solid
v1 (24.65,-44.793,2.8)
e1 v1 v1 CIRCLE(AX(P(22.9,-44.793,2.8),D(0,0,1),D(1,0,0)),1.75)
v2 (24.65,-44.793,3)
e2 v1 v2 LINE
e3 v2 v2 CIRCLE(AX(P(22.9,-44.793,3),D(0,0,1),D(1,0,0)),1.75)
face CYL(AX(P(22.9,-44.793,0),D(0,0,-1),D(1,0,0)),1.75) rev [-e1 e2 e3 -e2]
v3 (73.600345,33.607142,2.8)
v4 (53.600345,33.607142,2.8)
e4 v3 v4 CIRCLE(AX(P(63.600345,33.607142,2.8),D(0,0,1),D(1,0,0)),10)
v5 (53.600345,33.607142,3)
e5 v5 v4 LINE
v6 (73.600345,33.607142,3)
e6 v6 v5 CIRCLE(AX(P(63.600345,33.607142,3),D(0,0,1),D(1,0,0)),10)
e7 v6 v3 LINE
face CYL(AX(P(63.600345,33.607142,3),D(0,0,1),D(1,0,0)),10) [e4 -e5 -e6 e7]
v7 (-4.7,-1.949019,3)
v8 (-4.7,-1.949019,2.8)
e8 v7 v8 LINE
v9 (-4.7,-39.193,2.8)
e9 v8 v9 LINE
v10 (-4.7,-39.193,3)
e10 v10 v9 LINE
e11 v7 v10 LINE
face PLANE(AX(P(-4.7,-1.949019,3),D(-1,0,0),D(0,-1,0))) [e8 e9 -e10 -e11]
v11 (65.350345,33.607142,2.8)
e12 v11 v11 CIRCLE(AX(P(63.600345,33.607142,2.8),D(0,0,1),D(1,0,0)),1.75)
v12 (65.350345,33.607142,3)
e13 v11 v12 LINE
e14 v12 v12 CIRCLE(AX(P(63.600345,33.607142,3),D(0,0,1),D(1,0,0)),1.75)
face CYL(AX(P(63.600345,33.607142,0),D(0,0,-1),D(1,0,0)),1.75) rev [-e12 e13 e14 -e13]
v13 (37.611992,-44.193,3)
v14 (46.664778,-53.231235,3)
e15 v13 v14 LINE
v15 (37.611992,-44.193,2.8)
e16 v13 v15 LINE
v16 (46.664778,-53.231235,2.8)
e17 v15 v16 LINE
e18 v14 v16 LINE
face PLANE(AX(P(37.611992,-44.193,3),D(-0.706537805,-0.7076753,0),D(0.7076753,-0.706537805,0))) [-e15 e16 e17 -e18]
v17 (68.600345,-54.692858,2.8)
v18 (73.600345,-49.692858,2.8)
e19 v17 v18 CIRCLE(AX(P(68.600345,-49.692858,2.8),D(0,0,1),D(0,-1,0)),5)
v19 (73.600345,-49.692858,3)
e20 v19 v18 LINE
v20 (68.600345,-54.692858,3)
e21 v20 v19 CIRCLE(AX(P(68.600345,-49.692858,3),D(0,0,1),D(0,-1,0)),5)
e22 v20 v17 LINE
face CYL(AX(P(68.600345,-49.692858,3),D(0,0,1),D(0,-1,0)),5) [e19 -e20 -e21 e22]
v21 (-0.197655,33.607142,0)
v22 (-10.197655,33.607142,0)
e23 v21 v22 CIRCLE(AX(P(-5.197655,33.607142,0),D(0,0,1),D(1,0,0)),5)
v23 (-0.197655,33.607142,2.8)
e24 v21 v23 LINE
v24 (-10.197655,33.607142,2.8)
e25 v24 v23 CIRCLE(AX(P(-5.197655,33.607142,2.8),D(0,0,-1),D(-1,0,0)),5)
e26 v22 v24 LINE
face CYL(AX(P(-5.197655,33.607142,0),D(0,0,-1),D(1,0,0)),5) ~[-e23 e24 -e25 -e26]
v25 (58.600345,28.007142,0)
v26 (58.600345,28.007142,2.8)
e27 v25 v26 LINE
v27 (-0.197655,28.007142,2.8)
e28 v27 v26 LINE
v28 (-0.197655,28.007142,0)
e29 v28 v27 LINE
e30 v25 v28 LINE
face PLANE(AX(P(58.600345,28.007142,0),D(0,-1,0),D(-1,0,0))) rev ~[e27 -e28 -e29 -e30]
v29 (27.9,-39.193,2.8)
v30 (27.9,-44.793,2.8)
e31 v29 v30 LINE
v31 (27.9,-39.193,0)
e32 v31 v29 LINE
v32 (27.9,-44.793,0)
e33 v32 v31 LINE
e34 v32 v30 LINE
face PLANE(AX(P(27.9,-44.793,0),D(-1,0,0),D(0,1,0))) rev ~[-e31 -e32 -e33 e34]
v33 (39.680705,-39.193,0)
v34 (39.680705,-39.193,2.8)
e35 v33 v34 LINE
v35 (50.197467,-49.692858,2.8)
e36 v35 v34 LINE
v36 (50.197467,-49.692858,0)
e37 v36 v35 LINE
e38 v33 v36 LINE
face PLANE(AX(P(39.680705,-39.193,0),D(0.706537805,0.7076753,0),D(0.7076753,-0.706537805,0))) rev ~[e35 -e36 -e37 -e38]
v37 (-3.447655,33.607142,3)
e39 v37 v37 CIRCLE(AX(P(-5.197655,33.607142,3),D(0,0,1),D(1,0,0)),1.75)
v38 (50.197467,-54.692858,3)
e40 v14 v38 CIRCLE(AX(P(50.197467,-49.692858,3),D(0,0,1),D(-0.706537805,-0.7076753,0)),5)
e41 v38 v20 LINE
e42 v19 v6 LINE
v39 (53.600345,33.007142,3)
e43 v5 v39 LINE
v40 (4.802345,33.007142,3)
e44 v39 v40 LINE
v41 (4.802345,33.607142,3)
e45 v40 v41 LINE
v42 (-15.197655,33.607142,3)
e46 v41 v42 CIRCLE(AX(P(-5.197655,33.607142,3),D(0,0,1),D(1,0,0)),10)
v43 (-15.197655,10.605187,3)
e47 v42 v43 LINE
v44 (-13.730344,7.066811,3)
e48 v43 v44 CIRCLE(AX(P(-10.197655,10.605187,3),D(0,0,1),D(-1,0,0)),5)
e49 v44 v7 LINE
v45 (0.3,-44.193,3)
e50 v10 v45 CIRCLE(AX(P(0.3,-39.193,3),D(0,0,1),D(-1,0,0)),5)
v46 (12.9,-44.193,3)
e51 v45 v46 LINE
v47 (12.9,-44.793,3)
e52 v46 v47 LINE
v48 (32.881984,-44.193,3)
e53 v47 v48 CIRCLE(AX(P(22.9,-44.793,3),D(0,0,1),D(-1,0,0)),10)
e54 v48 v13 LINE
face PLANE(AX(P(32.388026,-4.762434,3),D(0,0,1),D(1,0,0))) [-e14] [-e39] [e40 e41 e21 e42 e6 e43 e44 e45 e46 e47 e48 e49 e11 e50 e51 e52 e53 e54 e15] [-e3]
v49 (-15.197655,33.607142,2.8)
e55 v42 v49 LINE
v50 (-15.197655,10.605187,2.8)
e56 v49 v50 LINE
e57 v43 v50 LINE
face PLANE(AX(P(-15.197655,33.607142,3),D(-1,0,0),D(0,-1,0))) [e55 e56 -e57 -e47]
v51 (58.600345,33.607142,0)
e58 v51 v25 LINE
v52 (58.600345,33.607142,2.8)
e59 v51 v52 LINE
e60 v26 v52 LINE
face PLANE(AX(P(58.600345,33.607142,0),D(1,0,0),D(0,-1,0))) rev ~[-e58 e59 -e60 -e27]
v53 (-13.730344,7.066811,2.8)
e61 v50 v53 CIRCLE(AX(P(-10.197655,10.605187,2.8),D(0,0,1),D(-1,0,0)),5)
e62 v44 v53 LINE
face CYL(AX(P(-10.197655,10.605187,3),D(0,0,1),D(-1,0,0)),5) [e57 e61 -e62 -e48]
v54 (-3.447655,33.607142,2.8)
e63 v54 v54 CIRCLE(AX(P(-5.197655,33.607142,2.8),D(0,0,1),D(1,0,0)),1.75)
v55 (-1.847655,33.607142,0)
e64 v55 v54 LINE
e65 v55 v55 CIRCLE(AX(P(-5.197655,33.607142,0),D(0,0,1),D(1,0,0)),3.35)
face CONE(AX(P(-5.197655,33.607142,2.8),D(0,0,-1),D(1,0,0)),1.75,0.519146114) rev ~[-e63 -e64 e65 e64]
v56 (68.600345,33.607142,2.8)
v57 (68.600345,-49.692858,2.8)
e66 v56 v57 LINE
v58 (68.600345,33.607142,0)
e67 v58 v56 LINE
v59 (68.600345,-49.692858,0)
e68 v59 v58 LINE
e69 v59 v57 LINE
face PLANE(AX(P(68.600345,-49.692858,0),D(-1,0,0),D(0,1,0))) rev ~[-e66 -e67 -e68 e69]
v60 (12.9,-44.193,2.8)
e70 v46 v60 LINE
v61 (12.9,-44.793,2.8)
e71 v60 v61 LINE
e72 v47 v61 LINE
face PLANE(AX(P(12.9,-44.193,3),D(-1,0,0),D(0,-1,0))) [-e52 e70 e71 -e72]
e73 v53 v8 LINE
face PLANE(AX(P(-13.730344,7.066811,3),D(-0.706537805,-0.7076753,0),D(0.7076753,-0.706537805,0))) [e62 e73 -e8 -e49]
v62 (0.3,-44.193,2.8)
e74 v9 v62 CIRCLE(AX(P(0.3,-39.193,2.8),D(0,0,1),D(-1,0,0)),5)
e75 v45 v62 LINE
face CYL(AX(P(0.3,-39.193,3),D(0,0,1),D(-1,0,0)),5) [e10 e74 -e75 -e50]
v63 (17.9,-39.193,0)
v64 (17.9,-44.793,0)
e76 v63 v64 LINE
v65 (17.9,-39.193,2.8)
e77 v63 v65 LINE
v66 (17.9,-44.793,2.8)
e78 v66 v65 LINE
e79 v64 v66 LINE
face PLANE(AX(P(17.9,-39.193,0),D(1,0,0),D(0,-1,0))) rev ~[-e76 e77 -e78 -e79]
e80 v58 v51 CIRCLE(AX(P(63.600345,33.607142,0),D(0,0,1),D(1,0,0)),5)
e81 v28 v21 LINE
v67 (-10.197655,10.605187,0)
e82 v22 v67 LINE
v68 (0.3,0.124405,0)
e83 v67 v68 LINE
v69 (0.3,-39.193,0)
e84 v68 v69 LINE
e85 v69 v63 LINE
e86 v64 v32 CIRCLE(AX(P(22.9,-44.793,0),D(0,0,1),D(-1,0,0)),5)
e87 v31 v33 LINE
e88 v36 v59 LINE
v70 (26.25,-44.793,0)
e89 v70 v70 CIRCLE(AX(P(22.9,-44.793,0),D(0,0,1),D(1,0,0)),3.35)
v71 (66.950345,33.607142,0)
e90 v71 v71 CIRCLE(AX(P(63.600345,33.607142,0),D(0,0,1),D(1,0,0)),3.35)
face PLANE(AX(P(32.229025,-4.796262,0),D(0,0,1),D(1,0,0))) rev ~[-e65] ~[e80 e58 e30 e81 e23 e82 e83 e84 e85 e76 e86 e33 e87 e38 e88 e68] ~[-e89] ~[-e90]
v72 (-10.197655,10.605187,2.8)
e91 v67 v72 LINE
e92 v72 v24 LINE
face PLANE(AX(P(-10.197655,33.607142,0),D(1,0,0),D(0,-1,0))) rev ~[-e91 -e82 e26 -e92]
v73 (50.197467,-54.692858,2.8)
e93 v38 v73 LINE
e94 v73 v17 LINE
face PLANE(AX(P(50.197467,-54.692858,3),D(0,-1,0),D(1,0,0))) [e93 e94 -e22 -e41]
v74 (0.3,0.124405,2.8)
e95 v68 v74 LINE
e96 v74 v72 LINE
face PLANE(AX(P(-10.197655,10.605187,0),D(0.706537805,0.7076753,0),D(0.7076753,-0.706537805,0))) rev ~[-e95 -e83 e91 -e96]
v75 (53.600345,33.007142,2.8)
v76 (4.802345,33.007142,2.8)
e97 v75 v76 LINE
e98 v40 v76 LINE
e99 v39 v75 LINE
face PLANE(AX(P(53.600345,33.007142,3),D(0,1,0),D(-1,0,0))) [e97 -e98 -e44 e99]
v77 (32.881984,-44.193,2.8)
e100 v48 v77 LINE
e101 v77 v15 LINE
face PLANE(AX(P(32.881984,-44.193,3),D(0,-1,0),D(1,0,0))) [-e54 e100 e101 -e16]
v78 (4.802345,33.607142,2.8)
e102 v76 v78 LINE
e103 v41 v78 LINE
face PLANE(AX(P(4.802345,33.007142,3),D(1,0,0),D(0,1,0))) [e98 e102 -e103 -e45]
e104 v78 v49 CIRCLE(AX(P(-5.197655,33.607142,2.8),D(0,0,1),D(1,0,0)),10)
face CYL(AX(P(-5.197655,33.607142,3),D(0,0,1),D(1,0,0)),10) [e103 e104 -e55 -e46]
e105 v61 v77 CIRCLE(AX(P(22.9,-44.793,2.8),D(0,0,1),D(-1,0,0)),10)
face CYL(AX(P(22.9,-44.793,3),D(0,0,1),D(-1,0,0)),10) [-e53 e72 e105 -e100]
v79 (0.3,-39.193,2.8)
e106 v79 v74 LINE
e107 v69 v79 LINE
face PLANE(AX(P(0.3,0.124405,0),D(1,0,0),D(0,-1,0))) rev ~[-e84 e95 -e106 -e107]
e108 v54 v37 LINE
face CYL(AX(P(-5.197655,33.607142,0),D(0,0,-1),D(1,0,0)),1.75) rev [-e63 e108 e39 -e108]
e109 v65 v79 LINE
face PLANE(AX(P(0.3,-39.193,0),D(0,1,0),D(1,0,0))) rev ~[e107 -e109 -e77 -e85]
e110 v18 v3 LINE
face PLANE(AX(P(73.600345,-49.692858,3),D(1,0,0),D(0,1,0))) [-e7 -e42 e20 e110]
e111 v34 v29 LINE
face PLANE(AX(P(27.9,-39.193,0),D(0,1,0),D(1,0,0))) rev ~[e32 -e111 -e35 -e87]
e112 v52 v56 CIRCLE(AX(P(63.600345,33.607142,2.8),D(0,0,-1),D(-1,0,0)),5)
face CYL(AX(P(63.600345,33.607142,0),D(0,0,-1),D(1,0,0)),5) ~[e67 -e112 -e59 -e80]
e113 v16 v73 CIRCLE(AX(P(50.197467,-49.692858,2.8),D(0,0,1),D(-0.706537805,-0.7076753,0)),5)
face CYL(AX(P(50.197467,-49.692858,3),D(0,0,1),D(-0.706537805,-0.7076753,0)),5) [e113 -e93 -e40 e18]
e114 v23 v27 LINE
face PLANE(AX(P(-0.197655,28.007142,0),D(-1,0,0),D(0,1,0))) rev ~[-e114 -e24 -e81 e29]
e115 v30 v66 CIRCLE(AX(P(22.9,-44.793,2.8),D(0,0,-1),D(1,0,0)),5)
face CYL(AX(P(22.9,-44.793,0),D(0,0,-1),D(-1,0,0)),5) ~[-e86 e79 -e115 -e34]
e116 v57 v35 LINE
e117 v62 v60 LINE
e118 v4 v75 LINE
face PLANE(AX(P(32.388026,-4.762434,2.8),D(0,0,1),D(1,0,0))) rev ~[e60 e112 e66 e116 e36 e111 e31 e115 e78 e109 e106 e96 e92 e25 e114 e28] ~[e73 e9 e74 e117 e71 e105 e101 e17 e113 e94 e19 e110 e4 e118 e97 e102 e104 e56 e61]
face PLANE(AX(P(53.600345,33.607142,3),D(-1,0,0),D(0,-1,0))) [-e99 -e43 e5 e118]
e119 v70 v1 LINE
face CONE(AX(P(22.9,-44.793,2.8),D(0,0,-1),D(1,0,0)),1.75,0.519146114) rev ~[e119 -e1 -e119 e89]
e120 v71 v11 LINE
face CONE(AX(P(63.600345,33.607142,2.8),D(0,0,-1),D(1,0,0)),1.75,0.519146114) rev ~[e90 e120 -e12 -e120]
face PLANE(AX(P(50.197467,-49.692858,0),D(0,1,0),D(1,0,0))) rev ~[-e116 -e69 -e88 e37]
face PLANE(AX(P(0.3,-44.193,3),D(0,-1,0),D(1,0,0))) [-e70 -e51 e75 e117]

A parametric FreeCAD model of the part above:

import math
import FreeCAD as App
import Part
import Sketcher

V = App.Vector
Q = App.Units.Quantity


def edges_at(feature, points):
    """Names of the edges that pass closest to the given points."""
    edges = feature.Shape.Edges
    near = lambda p: min(range(len(edges)), key=lambda i: edges[i].distToShape(Part.Vertex(*p))[0])
    return sorted({f"Edge{near(p) + 1}" for p in points})

doc = App.newDocument("Part")
body = doc.addObject("PartDesign::Body", "Body")

sketch1 = doc.addObject("Sketcher::SketchObject", "Sketch")
body.addObject(sketch1)
sketch1.AttachmentSupport = (doc.XY_Plane, [""])
sketch1.MapMode = "FlatFace"
sketch1.addGeometry([
    Part.LineSegment(V(17.9, -39.2, 0), V(17.9, -44.8, 0)),
    Part.ArcOfCircle(Part.Circle(V(22.9, -44.8, 0), V(0, 0, 1), 5), math.radians(180), math.radians(360)),
    Part.LineSegment(V(27.9, -44.8, 0), V(27.9, -39.2, 0)),
    Part.LineSegment(V(27.9, -39.2, 0), V(39.7, -39.2, 0)),
    Part.LineSegment(V(39.7, -39.2, 0), V(50.2, -49.7, 0)),
    Part.LineSegment(V(50.2, -49.7, 0), V(68.6, -49.7, 0)),
    Part.LineSegment(V(68.6, -49.7, 0), V(68.6, 33.6, 0)),
    Part.ArcOfCircle(Part.Circle(V(63.6, 33.6, 0), V(0, 0, 1), 5), math.radians(0), math.radians(180)),
    Part.LineSegment(V(58.6, 33.6, 0), V(58.6, 28, 0)),
    Part.LineSegment(V(58.6, 28, 0), V(-0.2, 28, 0)),
    Part.LineSegment(V(-0.2, 28, 0), V(-0.2, 33.6, 0)),
    Part.ArcOfCircle(Part.Circle(V(-5.2, 33.6, 0), V(0, 0, 1), 5), math.radians(0), math.radians(180)),
    Part.LineSegment(V(-10.2, 33.6, 0), V(-10.2, 10.6, 0)),
    Part.LineSegment(V(-10.2, 10.6, 0), V(0.3, 0.1, 0)),
    Part.LineSegment(V(0.3, 0.1, 0), V(0.3, -39.2, 0)),
    Part.LineSegment(V(0.3, -39.2, 0), V(17.9, -39.2, 0)),
    Part.Circle(V(22.9, -44.8, 0), V(0, 0, 1), 1.8),
    Part.Circle(V(-5.2, 33.6, 0), V(0, 0, 1), 1.8),
    Part.Circle(V(63.6, 33.6, 0), V(0, 0, 1), 1.8),
], False)
sketch1.addConstraint([
    Sketcher.Constraint("Tangent", 0, 2, 1, 1),
    Sketcher.Constraint("Tangent", 1, 2, 2, 1),
    Sketcher.Constraint("Coincident", 2, 2, 3, 1),
    Sketcher.Constraint("Coincident", 3, 2, 4, 1),
    Sketcher.Constraint("Coincident", 4, 2, 5, 1),
    Sketcher.Constraint("Coincident", 5, 2, 6, 1),
    Sketcher.Constraint("Tangent", 6, 2, 7, 1),
    Sketcher.Constraint("Tangent", 7, 2, 8, 1),
    Sketcher.Constraint("Coincident", 8, 2, 9, 1),
    Sketcher.Constraint("Coincident", 9, 2, 10, 1),
    Sketcher.Constraint("Tangent", 10, 2, 11, 1),
    Sketcher.Constraint("Tangent", 11, 2, 12, 1),
    Sketcher.Constraint("Coincident", 12, 2, 13, 1),
    Sketcher.Constraint("Coincident", 13, 2, 14, 1),
    Sketcher.Constraint("Coincident", 14, 2, 15, 1),
    Sketcher.Constraint("Coincident", 15, 2, 0, 1),
    Sketcher.Constraint("Vertical", 0),
    Sketcher.Constraint("Vertical", 2),
    Sketcher.Constraint("Horizontal", 3),
    Sketcher.Constraint("Horizontal", 5),
    Sketcher.Constraint("Vertical", 6),
    Sketcher.Constraint("Vertical", 8),
    Sketcher.Constraint("Horizontal", 9),
    Sketcher.Constraint("Vertical", 10),
    Sketcher.Constraint("Vertical", 12),
    Sketcher.Constraint("Vertical", 14),
    Sketcher.Constraint("Horizontal", 15),
    Sketcher.Constraint("Coincident", 16, 3, 1, 3),
    Sketcher.Constraint("Coincident", 17, 3, 11, 3),
    Sketcher.Constraint("Coincident", 18, 3, 7, 3),
    Sketcher.Constraint("Equal", 1, 7),
    Sketcher.Constraint("Equal", 7, 11),
    Sketcher.Constraint("Equal", 16, 17),
    Sketcher.Constraint("Equal", 17, 18),
    Sketcher.Constraint("Parallel", 4, 13),
    Sketcher.Constraint("Horizontal", 7, 3, 11, 3),
    Sketcher.Constraint("Horizontal", 3, 2, 14, 2),
    Sketcher.Constraint("Equal", 2, 8),
    Sketcher.Constraint("Radius", 1, Q("5 mm")),
    Sketcher.Constraint("Diameter", 16, Q("3.5 mm")),
    Sketcher.Constraint("DistanceX", 15, 1, 15, 2, Q("17.6 mm")),
    Sketcher.Constraint("DistanceY", 0, 2, 0, 1, Q("5.6 mm")),
    Sketcher.Constraint("DistanceY", 6, 1, 6, 2, Q("83.3 mm")),
    Sketcher.Constraint("DistanceX", -1, 1, 1, 3, Q("22.9 mm")),
    Sketcher.Constraint("DistanceX", 9, 2, 9, 1, Q("58.798 mm")),
    Sketcher.Constraint("Distance", 4, Q("14.861 mm")),
    Sketcher.Constraint("Distance", 13, Q("14.834 mm")),
    Sketcher.Constraint("DistanceY", 1, 3, -1, 1, Q("44.793 mm")),
    Sketcher.Constraint("DistanceX", 3, 1, 3, 2, Q("11.780705 mm")),
    Sketcher.Constraint("DistanceX", 5, 1, 5, 2, Q("18.402877 mm")),
    Sketcher.Constraint("DistanceY", 12, 2, 12, 1, Q("23.001954 mm")),
])
pad1 = doc.addObject("PartDesign::Pad", "Pad")
body.addObject(pad1)
pad1.Profile = sketch1
pad1.Length = 3
doc.recompute()

chamfer = doc.addObject("PartDesign::Chamfer", "Chamfer")
body.addObject(chamfer)
chamfer.Base = (pad1, edges_at(pad1, [(21.15, -44.793, 0), (-6.948, 33.607, 0), (61.85, 33.607, 0)]))
chamfer.ChamferType = "Two distances"
chamfer.Size = 1.6
chamfer.Size2 = 2.8
chamfer.FlipDirection = True

sketch2 = doc.addObject("Sketcher::SketchObject", "Sketch001")
body.addObject(sketch2)
sketch2.AttachmentSupport = (doc.XY_Plane, [""])
sketch2.MapMode = "FlatFace"
sketch2.AttachmentOffset = App.Placement(V(0, 0, 3), App.Rotation())
sketch2.addGeometry([
    Part.ArcOfCircle(Part.Circle(V(-5.2, 33.6, 0), V(0, 0, 1), 10), math.radians(0), math.radians(180)),
    Part.LineSegment(V(-15.2, 33.6, 0), V(-15.2, 10.6, 0)),
    Part.ArcOfCircle(Part.Circle(V(-10.2, 10.6, 0), V(0, 0, 1), 5), math.radians(180), math.radians(225)),
    Part.LineSegment(V(-13.7, 7.1, 0), V(-4.7, -1.9, 0)),
    Part.LineSegment(V(-4.7, -1.9, 0), V(-4.7, -39.2, 0)),
    Part.ArcOfCircle(Part.Circle(V(0.3, -39.2, 0), V(0, 0, 1), 5), math.radians(180), math.radians(270)),
    Part.LineSegment(V(0.3, -44.2, 0), V(12.9, -44.2, 0)),
    Part.LineSegment(V(12.9, -44.2, 0), V(12.9, -44.8, 0)),
    Part.ArcOfCircle(Part.Circle(V(22.9, -44.8, 0), V(0, 0, 1), 10), math.radians(180), math.radians(363)),
    Part.LineSegment(V(32.9, -44.2, 0), V(37.6, -44.2, 0)),
    Part.LineSegment(V(37.6, -44.2, 0), V(46.7, -53.2, 0)),
    Part.ArcOfCircle(Part.Circle(V(50.2, -49.7, 0), V(0, 0, 1), 5), math.radians(-135), math.radians(-90)),
    Part.LineSegment(V(50.2, -54.7, 0), V(68.6, -54.7, 0)),
    Part.ArcOfCircle(Part.Circle(V(68.6, -49.7, 0), V(0, 0, 1), 5), math.radians(-90), math.radians(0)),
    Part.LineSegment(V(73.6, -49.7, 0), V(73.6, 33.6, 0)),
    Part.ArcOfCircle(Part.Circle(V(63.6, 33.6, 0), V(0, 0, 1), 10), math.radians(0), math.radians(180)),
    Part.LineSegment(V(53.6, 33.6, 0), V(53.6, 33, 0)),
    Part.LineSegment(V(53.6, 33, 0), V(4.8, 33, 0)),
    Part.LineSegment(V(4.8, 33, 0), V(4.8, 33.6, 0)),
    Part.LineSegment(V(0.3, -39.2, 0), V(0.3, 0.1, 0)),
    Part.LineSegment(V(0.3, 0.1, 0), V(-10.2, 10.6, 0)),
    Part.LineSegment(V(-10.2, 10.6, 0), V(-10.2, 33.6, 0)),
    Part.ArcOfCircle(Part.Circle(V(-5.2, 33.6, 0), V(0, 0, 1), 5), math.radians(0), math.radians(180)),
    Part.LineSegment(V(-0.2, 33.6, 0), V(-0.2, 28, 0)),
    Part.LineSegment(V(-0.2, 28, 0), V(58.6, 28, 0)),
    Part.LineSegment(V(58.6, 28, 0), V(58.6, 33.6, 0)),
    Part.ArcOfCircle(Part.Circle(V(63.6, 33.6, 0), V(0, 0, 1), 5), math.radians(0), math.radians(180)),
    Part.LineSegment(V(68.6, 33.6, 0), V(68.6, -49.7, 0)),
    Part.LineSegment(V(68.6, -49.7, 0), V(50.2, -49.7, 0)),
    Part.LineSegment(V(50.2, -49.7, 0), V(39.7, -39.2, 0)),
    Part.LineSegment(V(39.7, -39.2, 0), V(27.9, -39.2, 0)),
    Part.LineSegment(V(27.9, -39.2, 0), V(27.9, -44.8, 0)),
    Part.ArcOfCircle(Part.Circle(V(22.9, -44.8, 0), V(0, 0, 1), 5), math.radians(180), math.radians(360)),
    Part.LineSegment(V(17.9, -44.8, 0), V(17.9, -39.2, 0)),
    Part.LineSegment(V(17.9, -39.2, 0), V(0.3, -39.2, 0)),
], False)
sketch2.addConstraint([
    Sketcher.Constraint("Tangent", 0, 2, 1, 1),
    Sketcher.Constraint("Tangent", 1, 2, 2, 1),
    Sketcher.Constraint("Tangent", 2, 2, 3, 1),
    Sketcher.Constraint("Coincident", 3, 2, 4, 1),
    Sketcher.Constraint("Tangent", 4, 2, 5, 1),
    Sketcher.Constraint("Tangent", 5, 2, 6, 1),
    Sketcher.Constraint("Coincident", 6, 2, 7, 1),
    Sketcher.Constraint("Tangent", 7, 2, 8, 1),
    Sketcher.Constraint("Coincident", 8, 2, 9, 1),
    Sketcher.Constraint("Coincident", 9, 2, 10, 1),
    Sketcher.Constraint("Tangent", 10, 2, 11, 1),
    Sketcher.Constraint("Tangent", 11, 2, 12, 1),
    Sketcher.Constraint("Tangent", 12, 2, 13, 1),
    Sketcher.Constraint("Tangent", 13, 2, 14, 1),
    Sketcher.Constraint("Tangent", 14, 2, 15, 1),
    Sketcher.Constraint("Tangent", 15, 2, 16, 1),
    Sketcher.Constraint("Coincident", 16, 2, 17, 1),
    Sketcher.Constraint("Coincident", 17, 2, 18, 1),
    Sketcher.Constraint("Tangent", 18, 2, 0, 1),
    Sketcher.Constraint("Coincident", 19, 2, 20, 1),
    Sketcher.Constraint("Coincident", 20, 2, 21, 1),
    Sketcher.Constraint("Tangent", 21, 2, 22, 2),
    Sketcher.Constraint("Tangent", 22, 1, 23, 1),
    Sketcher.Constraint("Coincident", 23, 2, 24, 1),
    Sketcher.Constraint("Coincident", 24, 2, 25, 1),
    Sketcher.Constraint("Tangent", 25, 2, 26, 2),
    Sketcher.Constraint("Tangent", 26, 1, 27, 1),
    Sketcher.Constraint("Coincident", 27, 2, 28, 1),
    Sketcher.Constraint("Coincident", 28, 2, 29, 1),
    Sketcher.Constraint("Coincident", 29, 2, 30, 1),
    Sketcher.Constraint("Coincident", 30, 2, 31, 1),
    Sketcher.Constraint("Tangent", 31, 2, 32, 2),
    Sketcher.Constraint("Tangent", 32, 1, 33, 1),
    Sketcher.Constraint("Coincident", 33, 2, 34, 1),
    Sketcher.Constraint("Coincident", 34, 2, 19, 1),
    Sketcher.Constraint("Vertical", 1),
    Sketcher.Constraint("Vertical", 4),
    Sketcher.Constraint("Horizontal", 6),
    Sketcher.Constraint("Vertical", 7),
    Sketcher.Constraint("Horizontal", 9),
    Sketcher.Constraint("Horizontal", 12),
    Sketcher.Constraint("Vertical", 14),
    Sketcher.Constraint("Vertical", 16),
    Sketcher.Constraint("Horizontal", 17),
    Sketcher.Constraint("Vertical", 18),
    Sketcher.Constraint("Vertical", 19),
    Sketcher.Constraint("Vertical", 21),
    Sketcher.Constraint("Vertical", 23),
    Sketcher.Constraint("Horizontal", 24),
    Sketcher.Constraint("Vertical", 25),
    Sketcher.Constraint("Vertical", 27),
    Sketcher.Constraint("Horizontal", 28),
    Sketcher.Constraint("Horizontal", 30),
    Sketcher.Constraint("Vertical", 31),
    Sketcher.Constraint("Vertical", 33),
    Sketcher.Constraint("Horizontal", 34),
    Sketcher.Constraint("Coincident", 22, 3, 0, 3),
    Sketcher.Constraint("Coincident", 26, 3, 15, 3),
    Sketcher.Constraint("Coincident", 32, 3, 8, 3),
    Sketcher.Constraint("Coincident", 20, 2, 2, 3),
    Sketcher.Constraint("Coincident", 27, 2, 13, 3),
    Sketcher.Constraint("Coincident", 28, 2, 11, 3),
    Sketcher.Constraint("Coincident", 34, 2, 5, 3),
    Sketcher.Constraint("Equal", 2, 5),
    Sketcher.Constraint("Equal", 0, 8),
    Sketcher.Constraint("Equal", 5, 11),
    Sketcher.Constraint("Equal", 8, 15),
    Sketcher.Constraint("Equal", 13, 22),
    Sketcher.Constraint("Equal", 26, 32),
    Sketcher.Constraint("Parallel", 3, 10),
    Sketcher.Constraint("Parallel", 10, 20),
    Sketcher.Constraint("Parallel", 20, 29),
    Sketcher.Constraint("Horizontal", 0, 3, 15, 3),
    Sketcher.Constraint("Horizontal", 6, 2, 8, 2),
    Sketcher.Constraint("Horizontal", 4, 2, 29, 2),
    Sketcher.Constraint("Equal", 7, 16),
    Sketcher.Constraint("Equal", 25, 31),
    Sketcher.Constraint("Radius", 0, Q("10 mm")),
    Sketcher.Constraint("DistanceX", 6, 1, 6, 2, Q("12.6 mm")),
    Sketcher.Constraint("DistanceY", 7, 2, 7, 1, Q("0.6 mm")),
    Sketcher.Constraint("DistanceY", 14, 1, 14, 2, Q("83.3 mm")),
    Sketcher.Constraint("DistanceX", -1, 1, 5, 3, Q("0.3 mm")),
    Sketcher.Constraint("DistanceX", 17, 2, 17, 1, Q("48.798 mm")),
    Sketcher.Constraint("Distance", 20, Q("14.834 mm")),
    Sketcher.Constraint("Distance", 29, Q("14.861 mm")),
    Sketcher.Constraint("DistanceY", 5, 3, -1, 1, Q("39.193 mm")),
    Sketcher.Constraint("DistanceX", 9, 1, 9, 2, Q("4.730009 mm")),
    Sketcher.Constraint("DistanceY", 4, 2, 4, 1, Q("37.243981 mm")),
    Sketcher.Constraint("DistanceX", 12, 1, 12, 2, Q("18.402877 mm")),
])
pad2 = doc.addObject("PartDesign::Pad", "Pad001")
body.addObject(pad2)
pad2.Profile = sketch2
pad2.Length = 0.2
pad2.Reversed = True

doc.recompute()
